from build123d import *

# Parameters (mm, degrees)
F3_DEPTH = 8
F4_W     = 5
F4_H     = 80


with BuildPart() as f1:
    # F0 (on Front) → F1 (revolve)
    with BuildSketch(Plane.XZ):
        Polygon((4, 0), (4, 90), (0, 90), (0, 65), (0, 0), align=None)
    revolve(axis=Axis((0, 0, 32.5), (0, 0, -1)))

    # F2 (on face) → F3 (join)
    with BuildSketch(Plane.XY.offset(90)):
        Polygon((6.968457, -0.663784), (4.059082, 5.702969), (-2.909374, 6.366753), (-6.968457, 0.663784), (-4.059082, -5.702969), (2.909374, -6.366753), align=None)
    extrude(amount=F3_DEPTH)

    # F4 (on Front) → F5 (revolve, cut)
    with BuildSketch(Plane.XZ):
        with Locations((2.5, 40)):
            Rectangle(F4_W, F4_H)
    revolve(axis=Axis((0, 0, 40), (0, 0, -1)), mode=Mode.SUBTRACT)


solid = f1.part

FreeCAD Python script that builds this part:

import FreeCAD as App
import Part
import Sketcher

doc = App.newDocument("Part")
params = doc.addObject("Spreadsheet::Sheet", "Params")
for row, (alias, value) in enumerate([
    ("sketch1_width", "4 mm"),
    ("sketch1_height", "90 mm"),
    ("revolution_angle", "360 deg"),
    ("sketch2_length", "7 mm"),
    ("pad1_length", "8 mm"),
    ("sketch3_width", "5 mm"),
    ("sketch3_height", "80 mm"),
    ("groove_angle", "360 deg"),
], start=1):
    params.set(f"A{row}", alias)
    params.set(f"B{row}", "=" + value)
    params.setAlias(f"B{row}", alias)

body = doc.addObject("PartDesign::Body", "Body")

# Sketch on XZ plane
sketch1 = body.newObject("Sketcher::SketchObject", "Sketch")
sketch1.AttachmentSupport = (doc.getObject("XZ_Plane"), [""])
sketch1.MapMode = "FlatFace"
sketch1.addGeometry([
    Part.LineSegment(App.Vector(4, 0, 0), App.Vector(4, 90, 0)),
    Part.LineSegment(App.Vector(4, 90, 0), App.Vector(0, 90, 0)),
    Part.LineSegment(App.Vector(0, 90, 0), App.Vector(0, 0, 0)),
    Part.LineSegment(App.Vector(0, 0, 0), App.Vector(4, 0, 0)),
], False)
sketch1.addConstraint([
    Sketcher.Constraint("Coincident", 0, 2, 1, 1),
    Sketcher.Constraint("Coincident", 1, 2, 2, 1),
    Sketcher.Constraint("Coincident", 2, 2, 3, 1),
    Sketcher.Constraint("Coincident", 3, 2, 0, 1),
    Sketcher.Constraint("Vertical", 0),
    Sketcher.Constraint("Horizontal", 1),
    Sketcher.Constraint("Vertical", 2),
    Sketcher.Constraint("Horizontal", 3),
    Sketcher.Constraint("Coincident", 2, 2, -1, 1),
    Sketcher.Constraint("DistanceX", 1, 2, 1, 1, 4.0),
    Sketcher.Constraint("DistanceY", 0, 1, 0, 2, 90.0),
])
sketch1.setExpression("Constraints[9]", "Params.sketch1_width")
sketch1.setExpression("Constraints[10]", "Params.sketch1_height")
revolution = body.newObject("PartDesign::Revolution", "Revolution")
revolution.Profile = sketch1
revolution.ReferenceAxis = (sketch1, ["V_Axis"])
revolution.setExpression("Angle", "Params.revolution_angle")

# Sketch on XY plane
sketch2 = body.newObject("Sketcher::SketchObject", "Sketch001")
sketch2.AttachmentSupport = (doc.getObject("XY_Plane"), [""])
sketch2.MapMode = "FlatFace"
sketch2.AttachmentOffset = App.Placement(App.Vector(0, 0, 90), App.Rotation())
sketch2.addGeometry([
    Part.LineSegment(App.Vector(7, -1, 0), App.Vector(4, 6, 0)),  # 0
    Part.LineSegment(App.Vector(4, 6, 0), App.Vector(-3, 6, 0)),  # 1
    Part.LineSegment(App.Vector(-3, 6, 0), App.Vector(-7, 1, 0)),  # 2
    Part.LineSegment(App.Vector(-7, 1, 0), App.Vector(-4, -6, 0)),  # 3
    Part.LineSegment(App.Vector(-4, -6, 0), App.Vector(3, -6, 0)),  # 4
    Part.LineSegment(App.Vector(3, -6, 0), App.Vector(7, -1, 0)),  # 5
], False)
sketch2.addConstraint([
    Sketcher.Constraint("Coincident", 0, 2, 1, 1),
    Sketcher.Constraint("Coincident", 1, 2, 2, 1),
    Sketcher.Constraint("Coincident", 2, 2, 3, 1),
    Sketcher.Constraint("Coincident", 3, 2, 4, 1),
    Sketcher.Constraint("Coincident", 4, 2, 5, 1),
    Sketcher.Constraint("Coincident", 5, 2, 0, 1),
    Sketcher.Constraint("Symmetric", 0, 2, 3, 2, -1, 1),
    Sketcher.Constraint("Symmetric", 1, 2, 4, 2, -1, 1),
    Sketcher.Constraint("Symmetric", 2, 2, 5, 2, -1, 1),
    Sketcher.Constraint("Equal", 0, 1),
    Sketcher.Constraint("Equal", 1, 2),
    Sketcher.Constraint("Distance", 0, 7.0),
    Sketcher.Constraint("DistanceY", -1, 1, 0, 2, 5.702969),
    Sketcher.Constraint("DistanceY", 2, 2, 1, 2, 5.702969),
    Sketcher.Constraint("DistanceX", 2, 2, 0, 2, 11.027539),
])
sketch2.setExpression("Constraints[11]", "Params.sketch2_length")
pad1 = body.newObject("PartDesign::Pad", "Pad")
pad1.Profile = sketch2
pad1.setExpression("Length", "Params.pad1_length")

# Sketch on XZ plane
sketch3 = body.newObject("Sketcher::SketchObject", "Sketch002")
sketch3.AttachmentSupport = (doc.getObject("XZ_Plane"), [""])
sketch3.MapMode = "FlatFace"
sketch3.addGeometry([
    Part.LineSegment(App.Vector(0, 80, 0), App.Vector(0, 0, 0)),
    Part.LineSegment(App.Vector(0, 0, 0), App.Vector(5, 0, 0)),
    Part.LineSegment(App.Vector(5, 0, 0), App.Vector(5, 80, 0)),
    Part.LineSegment(App.Vector(5, 80, 0), App.Vector(0, 80, 0)),
], False)
sketch3.addConstraint([
    Sketcher.Constraint("Coincident", 0, 2, 1, 1),
    Sketcher.Constraint("Coincident", 1, 2, 2, 1),
    Sketcher.Constraint("Coincident", 2, 2, 3, 1),
    Sketcher.Constraint("Coincident", 3, 2, 0, 1),
    Sketcher.Constraint("Vertical", 0),
    Sketcher.Constraint("Horizontal", 1),
    Sketcher.Constraint("Vertical", 2),
    Sketcher.Constraint("Horizontal", 3),
    Sketcher.Constraint("Coincident", 0, 2, -1, 1),
    Sketcher.Constraint("DistanceX", 1, 1, 1, 2, 5.0),
    Sketcher.Constraint("DistanceY", 0, 2, 0, 1, 80.0),
])
sketch3.setExpression("Constraints[9]", "Params.sketch3_width")
sketch3.setExpression("Constraints[10]", "Params.sketch3_height")
groove = body.newObject("PartDesign::Groove", "Groove")
groove.Profile = sketch3
groove.ReferenceAxis = (sketch3, ["V_Axis"])
groove.setExpression("Angle", "Params.groove_angle")

doc.recompute()
